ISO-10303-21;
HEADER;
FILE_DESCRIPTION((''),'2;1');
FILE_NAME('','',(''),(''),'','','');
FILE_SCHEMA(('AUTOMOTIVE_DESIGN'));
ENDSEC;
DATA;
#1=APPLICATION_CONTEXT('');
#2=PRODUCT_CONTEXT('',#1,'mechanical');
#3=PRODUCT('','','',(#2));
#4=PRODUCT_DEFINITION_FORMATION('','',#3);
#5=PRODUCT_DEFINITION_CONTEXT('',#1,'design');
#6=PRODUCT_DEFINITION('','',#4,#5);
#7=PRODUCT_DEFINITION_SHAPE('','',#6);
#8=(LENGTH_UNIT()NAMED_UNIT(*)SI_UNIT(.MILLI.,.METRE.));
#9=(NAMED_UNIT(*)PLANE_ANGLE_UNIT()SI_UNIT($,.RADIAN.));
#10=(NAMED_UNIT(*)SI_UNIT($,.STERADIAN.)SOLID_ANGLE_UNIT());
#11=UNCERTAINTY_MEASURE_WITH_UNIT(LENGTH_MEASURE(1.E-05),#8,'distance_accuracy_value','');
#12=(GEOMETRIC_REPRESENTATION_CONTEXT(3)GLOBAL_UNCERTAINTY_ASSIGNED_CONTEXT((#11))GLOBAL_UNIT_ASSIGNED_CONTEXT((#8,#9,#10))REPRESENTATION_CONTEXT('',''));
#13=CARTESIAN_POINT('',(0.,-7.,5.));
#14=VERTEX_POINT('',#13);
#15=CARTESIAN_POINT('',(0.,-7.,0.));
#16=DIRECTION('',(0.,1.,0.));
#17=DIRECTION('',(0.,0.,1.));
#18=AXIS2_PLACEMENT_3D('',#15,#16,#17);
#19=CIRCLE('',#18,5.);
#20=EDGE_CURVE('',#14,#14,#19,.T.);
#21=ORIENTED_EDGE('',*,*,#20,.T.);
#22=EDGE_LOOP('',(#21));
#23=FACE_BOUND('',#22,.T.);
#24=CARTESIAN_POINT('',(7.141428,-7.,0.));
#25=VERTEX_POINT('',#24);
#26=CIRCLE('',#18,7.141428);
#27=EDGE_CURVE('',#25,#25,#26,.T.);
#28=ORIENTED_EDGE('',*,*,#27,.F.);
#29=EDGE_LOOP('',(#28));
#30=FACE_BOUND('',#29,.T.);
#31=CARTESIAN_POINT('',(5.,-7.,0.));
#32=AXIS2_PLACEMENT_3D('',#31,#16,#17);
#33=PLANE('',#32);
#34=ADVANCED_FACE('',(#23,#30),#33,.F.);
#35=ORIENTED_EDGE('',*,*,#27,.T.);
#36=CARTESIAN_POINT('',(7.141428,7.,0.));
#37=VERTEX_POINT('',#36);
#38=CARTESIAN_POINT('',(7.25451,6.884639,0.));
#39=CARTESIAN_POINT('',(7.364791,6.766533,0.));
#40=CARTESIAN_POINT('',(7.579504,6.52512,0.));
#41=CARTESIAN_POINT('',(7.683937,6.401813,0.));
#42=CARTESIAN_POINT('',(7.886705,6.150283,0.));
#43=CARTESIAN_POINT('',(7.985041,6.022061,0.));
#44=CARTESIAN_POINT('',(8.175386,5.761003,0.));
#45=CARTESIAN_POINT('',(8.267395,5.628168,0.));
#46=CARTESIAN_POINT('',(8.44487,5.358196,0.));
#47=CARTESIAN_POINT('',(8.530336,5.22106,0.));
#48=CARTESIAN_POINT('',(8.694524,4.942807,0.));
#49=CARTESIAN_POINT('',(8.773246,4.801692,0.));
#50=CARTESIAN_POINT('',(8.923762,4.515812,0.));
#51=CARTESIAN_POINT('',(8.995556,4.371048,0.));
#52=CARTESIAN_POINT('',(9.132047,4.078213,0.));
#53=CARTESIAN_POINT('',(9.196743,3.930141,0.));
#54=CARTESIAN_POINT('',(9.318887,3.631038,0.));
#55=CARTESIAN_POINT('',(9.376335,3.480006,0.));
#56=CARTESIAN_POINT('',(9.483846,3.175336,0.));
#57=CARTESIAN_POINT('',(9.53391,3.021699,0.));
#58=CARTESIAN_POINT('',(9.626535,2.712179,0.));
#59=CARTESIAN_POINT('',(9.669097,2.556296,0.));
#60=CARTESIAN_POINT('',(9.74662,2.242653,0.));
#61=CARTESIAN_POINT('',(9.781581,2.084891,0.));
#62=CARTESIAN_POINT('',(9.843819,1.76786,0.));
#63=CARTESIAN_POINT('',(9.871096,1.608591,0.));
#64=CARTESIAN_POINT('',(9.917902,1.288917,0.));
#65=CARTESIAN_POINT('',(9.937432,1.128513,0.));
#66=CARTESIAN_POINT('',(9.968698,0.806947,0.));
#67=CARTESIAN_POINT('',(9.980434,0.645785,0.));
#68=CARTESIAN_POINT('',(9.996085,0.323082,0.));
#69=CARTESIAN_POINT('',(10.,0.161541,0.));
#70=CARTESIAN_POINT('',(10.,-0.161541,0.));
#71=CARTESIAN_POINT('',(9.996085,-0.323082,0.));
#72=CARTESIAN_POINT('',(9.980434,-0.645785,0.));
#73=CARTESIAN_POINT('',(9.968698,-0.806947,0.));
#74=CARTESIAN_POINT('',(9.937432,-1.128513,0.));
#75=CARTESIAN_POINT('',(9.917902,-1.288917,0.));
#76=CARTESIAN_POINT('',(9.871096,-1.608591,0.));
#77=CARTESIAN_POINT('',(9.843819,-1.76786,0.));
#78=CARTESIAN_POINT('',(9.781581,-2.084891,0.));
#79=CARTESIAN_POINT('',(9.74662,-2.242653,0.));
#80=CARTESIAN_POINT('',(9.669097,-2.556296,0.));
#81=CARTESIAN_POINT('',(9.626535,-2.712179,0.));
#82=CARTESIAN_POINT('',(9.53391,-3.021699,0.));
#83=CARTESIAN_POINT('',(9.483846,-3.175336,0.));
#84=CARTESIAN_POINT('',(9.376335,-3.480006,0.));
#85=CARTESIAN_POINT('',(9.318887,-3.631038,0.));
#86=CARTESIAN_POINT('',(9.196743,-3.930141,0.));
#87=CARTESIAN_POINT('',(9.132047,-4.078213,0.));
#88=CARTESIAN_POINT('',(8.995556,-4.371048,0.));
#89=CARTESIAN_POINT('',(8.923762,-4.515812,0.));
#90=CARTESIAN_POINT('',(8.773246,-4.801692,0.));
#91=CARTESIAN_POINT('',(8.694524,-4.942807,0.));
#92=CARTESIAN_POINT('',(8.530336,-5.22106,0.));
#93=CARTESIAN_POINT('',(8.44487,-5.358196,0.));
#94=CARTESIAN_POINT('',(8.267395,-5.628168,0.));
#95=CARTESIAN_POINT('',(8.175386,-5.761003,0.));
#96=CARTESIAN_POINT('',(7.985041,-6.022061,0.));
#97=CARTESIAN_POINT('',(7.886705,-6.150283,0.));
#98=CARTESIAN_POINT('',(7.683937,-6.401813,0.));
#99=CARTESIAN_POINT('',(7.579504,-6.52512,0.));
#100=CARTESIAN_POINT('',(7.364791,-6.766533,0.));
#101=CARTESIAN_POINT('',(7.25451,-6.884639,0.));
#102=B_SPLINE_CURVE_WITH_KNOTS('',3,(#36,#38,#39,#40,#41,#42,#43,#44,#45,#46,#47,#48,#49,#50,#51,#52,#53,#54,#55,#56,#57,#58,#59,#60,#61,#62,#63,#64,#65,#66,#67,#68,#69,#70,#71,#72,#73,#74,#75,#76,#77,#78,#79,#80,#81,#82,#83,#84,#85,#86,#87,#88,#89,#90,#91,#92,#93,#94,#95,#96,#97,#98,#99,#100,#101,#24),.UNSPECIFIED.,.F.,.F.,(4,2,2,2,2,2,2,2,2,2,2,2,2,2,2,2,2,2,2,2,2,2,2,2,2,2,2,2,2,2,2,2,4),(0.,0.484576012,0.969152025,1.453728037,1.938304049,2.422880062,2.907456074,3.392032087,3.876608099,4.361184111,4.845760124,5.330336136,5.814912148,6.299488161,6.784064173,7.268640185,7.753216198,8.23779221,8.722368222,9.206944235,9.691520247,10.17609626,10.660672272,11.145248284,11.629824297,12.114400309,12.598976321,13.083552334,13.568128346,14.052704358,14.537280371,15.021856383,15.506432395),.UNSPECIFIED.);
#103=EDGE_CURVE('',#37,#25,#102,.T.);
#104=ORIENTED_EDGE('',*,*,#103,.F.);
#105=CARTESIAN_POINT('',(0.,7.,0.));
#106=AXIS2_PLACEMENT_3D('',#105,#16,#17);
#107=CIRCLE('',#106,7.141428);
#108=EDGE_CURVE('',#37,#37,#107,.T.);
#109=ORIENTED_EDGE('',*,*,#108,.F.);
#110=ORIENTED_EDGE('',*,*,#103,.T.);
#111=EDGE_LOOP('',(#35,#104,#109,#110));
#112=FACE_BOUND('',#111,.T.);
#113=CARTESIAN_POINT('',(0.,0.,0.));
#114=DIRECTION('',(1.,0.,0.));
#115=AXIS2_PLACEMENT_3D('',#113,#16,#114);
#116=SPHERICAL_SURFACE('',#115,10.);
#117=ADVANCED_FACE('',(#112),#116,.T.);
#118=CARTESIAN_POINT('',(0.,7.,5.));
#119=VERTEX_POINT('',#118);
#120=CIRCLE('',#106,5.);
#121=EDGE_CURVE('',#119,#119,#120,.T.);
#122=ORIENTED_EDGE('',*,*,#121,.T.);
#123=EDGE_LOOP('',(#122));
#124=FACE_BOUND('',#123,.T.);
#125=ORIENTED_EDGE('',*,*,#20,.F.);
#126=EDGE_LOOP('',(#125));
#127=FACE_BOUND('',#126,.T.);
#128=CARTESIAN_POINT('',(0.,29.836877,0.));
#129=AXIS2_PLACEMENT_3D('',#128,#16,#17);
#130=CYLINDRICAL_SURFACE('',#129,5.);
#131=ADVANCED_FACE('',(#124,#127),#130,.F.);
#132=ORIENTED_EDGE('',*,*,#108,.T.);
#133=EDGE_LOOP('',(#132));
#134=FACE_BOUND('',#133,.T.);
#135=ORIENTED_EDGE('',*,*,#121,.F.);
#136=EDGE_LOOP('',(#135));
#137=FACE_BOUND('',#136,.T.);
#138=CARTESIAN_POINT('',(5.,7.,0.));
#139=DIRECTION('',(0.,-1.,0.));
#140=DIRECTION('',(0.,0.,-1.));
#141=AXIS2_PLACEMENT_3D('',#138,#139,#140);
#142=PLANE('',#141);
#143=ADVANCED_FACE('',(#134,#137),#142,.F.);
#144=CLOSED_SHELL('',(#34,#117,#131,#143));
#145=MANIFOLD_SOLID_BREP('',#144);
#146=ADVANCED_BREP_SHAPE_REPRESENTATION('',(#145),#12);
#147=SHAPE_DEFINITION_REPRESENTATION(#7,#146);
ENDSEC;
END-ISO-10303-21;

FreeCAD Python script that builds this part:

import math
import FreeCAD as App
import Part
import Sketcher

doc = App.newDocument("Part")
body = doc.addObject("PartDesign::Body", "Body")

# Sketch on XY plane
sketch1 = doc.addObject("Sketcher::SketchObject", "Sketch")
body.addObject(sketch1)
sketch1.AttachmentSupport = (doc.XY_Plane, [""])
sketch1.MapMode = "FlatFace"
sketch1.addGeometry([
    Part.LineSegment(App.Vector(5, 7, 0), App.Vector(5, -7, 0)),
    Part.LineSegment(App.Vector(5, -7, 0), App.Vector(7.1, -7, 0)),
    Part.ArcOfCircle(Part.Circle(App.Vector(0, 0, 0), App.Vector(0, 0, 1), 10), math.radians(-44), math.radians(44)),
    Part.LineSegment(App.Vector(7.1, 7, 0), App.Vector(5, 7, 0)),
], False)
sketch1.addConstraint([
    Sketcher.Constraint("Coincident", 0, 2, 1, 1),
    Sketcher.Constraint("Coincident", 1, 2, 2, 1),
    Sketcher.Constraint("Coincident", 2, 2, 3, 1),
    Sketcher.Constraint("Coincident", 3, 2, 0, 1),
    Sketcher.Constraint("Vertical", 0),
    Sketcher.Constraint("Horizontal", 1),
    Sketcher.Constraint("Horizontal", 3),
    Sketcher.Constraint("Coincident", 2, 3, -1, 1),
    Sketcher.Constraint("Vertical", 1, 2, 2, 2),
    Sketcher.Constraint("Radius", 2, 10.0),
    Sketcher.Constraint("DistanceY", 0, 2, 0, 1, 14.0),
    Sketcher.Constraint("DistanceX", -1, 1, 0, 2, 5.0),
])
revolution = doc.addObject("PartDesign::Revolution", "Revolution")
body.addObject(revolution)
revolution.Profile = sketch1
revolution.ReferenceAxis = (sketch1, ["V_Axis"])
revolution.Angle = 360

doc.recompute()
